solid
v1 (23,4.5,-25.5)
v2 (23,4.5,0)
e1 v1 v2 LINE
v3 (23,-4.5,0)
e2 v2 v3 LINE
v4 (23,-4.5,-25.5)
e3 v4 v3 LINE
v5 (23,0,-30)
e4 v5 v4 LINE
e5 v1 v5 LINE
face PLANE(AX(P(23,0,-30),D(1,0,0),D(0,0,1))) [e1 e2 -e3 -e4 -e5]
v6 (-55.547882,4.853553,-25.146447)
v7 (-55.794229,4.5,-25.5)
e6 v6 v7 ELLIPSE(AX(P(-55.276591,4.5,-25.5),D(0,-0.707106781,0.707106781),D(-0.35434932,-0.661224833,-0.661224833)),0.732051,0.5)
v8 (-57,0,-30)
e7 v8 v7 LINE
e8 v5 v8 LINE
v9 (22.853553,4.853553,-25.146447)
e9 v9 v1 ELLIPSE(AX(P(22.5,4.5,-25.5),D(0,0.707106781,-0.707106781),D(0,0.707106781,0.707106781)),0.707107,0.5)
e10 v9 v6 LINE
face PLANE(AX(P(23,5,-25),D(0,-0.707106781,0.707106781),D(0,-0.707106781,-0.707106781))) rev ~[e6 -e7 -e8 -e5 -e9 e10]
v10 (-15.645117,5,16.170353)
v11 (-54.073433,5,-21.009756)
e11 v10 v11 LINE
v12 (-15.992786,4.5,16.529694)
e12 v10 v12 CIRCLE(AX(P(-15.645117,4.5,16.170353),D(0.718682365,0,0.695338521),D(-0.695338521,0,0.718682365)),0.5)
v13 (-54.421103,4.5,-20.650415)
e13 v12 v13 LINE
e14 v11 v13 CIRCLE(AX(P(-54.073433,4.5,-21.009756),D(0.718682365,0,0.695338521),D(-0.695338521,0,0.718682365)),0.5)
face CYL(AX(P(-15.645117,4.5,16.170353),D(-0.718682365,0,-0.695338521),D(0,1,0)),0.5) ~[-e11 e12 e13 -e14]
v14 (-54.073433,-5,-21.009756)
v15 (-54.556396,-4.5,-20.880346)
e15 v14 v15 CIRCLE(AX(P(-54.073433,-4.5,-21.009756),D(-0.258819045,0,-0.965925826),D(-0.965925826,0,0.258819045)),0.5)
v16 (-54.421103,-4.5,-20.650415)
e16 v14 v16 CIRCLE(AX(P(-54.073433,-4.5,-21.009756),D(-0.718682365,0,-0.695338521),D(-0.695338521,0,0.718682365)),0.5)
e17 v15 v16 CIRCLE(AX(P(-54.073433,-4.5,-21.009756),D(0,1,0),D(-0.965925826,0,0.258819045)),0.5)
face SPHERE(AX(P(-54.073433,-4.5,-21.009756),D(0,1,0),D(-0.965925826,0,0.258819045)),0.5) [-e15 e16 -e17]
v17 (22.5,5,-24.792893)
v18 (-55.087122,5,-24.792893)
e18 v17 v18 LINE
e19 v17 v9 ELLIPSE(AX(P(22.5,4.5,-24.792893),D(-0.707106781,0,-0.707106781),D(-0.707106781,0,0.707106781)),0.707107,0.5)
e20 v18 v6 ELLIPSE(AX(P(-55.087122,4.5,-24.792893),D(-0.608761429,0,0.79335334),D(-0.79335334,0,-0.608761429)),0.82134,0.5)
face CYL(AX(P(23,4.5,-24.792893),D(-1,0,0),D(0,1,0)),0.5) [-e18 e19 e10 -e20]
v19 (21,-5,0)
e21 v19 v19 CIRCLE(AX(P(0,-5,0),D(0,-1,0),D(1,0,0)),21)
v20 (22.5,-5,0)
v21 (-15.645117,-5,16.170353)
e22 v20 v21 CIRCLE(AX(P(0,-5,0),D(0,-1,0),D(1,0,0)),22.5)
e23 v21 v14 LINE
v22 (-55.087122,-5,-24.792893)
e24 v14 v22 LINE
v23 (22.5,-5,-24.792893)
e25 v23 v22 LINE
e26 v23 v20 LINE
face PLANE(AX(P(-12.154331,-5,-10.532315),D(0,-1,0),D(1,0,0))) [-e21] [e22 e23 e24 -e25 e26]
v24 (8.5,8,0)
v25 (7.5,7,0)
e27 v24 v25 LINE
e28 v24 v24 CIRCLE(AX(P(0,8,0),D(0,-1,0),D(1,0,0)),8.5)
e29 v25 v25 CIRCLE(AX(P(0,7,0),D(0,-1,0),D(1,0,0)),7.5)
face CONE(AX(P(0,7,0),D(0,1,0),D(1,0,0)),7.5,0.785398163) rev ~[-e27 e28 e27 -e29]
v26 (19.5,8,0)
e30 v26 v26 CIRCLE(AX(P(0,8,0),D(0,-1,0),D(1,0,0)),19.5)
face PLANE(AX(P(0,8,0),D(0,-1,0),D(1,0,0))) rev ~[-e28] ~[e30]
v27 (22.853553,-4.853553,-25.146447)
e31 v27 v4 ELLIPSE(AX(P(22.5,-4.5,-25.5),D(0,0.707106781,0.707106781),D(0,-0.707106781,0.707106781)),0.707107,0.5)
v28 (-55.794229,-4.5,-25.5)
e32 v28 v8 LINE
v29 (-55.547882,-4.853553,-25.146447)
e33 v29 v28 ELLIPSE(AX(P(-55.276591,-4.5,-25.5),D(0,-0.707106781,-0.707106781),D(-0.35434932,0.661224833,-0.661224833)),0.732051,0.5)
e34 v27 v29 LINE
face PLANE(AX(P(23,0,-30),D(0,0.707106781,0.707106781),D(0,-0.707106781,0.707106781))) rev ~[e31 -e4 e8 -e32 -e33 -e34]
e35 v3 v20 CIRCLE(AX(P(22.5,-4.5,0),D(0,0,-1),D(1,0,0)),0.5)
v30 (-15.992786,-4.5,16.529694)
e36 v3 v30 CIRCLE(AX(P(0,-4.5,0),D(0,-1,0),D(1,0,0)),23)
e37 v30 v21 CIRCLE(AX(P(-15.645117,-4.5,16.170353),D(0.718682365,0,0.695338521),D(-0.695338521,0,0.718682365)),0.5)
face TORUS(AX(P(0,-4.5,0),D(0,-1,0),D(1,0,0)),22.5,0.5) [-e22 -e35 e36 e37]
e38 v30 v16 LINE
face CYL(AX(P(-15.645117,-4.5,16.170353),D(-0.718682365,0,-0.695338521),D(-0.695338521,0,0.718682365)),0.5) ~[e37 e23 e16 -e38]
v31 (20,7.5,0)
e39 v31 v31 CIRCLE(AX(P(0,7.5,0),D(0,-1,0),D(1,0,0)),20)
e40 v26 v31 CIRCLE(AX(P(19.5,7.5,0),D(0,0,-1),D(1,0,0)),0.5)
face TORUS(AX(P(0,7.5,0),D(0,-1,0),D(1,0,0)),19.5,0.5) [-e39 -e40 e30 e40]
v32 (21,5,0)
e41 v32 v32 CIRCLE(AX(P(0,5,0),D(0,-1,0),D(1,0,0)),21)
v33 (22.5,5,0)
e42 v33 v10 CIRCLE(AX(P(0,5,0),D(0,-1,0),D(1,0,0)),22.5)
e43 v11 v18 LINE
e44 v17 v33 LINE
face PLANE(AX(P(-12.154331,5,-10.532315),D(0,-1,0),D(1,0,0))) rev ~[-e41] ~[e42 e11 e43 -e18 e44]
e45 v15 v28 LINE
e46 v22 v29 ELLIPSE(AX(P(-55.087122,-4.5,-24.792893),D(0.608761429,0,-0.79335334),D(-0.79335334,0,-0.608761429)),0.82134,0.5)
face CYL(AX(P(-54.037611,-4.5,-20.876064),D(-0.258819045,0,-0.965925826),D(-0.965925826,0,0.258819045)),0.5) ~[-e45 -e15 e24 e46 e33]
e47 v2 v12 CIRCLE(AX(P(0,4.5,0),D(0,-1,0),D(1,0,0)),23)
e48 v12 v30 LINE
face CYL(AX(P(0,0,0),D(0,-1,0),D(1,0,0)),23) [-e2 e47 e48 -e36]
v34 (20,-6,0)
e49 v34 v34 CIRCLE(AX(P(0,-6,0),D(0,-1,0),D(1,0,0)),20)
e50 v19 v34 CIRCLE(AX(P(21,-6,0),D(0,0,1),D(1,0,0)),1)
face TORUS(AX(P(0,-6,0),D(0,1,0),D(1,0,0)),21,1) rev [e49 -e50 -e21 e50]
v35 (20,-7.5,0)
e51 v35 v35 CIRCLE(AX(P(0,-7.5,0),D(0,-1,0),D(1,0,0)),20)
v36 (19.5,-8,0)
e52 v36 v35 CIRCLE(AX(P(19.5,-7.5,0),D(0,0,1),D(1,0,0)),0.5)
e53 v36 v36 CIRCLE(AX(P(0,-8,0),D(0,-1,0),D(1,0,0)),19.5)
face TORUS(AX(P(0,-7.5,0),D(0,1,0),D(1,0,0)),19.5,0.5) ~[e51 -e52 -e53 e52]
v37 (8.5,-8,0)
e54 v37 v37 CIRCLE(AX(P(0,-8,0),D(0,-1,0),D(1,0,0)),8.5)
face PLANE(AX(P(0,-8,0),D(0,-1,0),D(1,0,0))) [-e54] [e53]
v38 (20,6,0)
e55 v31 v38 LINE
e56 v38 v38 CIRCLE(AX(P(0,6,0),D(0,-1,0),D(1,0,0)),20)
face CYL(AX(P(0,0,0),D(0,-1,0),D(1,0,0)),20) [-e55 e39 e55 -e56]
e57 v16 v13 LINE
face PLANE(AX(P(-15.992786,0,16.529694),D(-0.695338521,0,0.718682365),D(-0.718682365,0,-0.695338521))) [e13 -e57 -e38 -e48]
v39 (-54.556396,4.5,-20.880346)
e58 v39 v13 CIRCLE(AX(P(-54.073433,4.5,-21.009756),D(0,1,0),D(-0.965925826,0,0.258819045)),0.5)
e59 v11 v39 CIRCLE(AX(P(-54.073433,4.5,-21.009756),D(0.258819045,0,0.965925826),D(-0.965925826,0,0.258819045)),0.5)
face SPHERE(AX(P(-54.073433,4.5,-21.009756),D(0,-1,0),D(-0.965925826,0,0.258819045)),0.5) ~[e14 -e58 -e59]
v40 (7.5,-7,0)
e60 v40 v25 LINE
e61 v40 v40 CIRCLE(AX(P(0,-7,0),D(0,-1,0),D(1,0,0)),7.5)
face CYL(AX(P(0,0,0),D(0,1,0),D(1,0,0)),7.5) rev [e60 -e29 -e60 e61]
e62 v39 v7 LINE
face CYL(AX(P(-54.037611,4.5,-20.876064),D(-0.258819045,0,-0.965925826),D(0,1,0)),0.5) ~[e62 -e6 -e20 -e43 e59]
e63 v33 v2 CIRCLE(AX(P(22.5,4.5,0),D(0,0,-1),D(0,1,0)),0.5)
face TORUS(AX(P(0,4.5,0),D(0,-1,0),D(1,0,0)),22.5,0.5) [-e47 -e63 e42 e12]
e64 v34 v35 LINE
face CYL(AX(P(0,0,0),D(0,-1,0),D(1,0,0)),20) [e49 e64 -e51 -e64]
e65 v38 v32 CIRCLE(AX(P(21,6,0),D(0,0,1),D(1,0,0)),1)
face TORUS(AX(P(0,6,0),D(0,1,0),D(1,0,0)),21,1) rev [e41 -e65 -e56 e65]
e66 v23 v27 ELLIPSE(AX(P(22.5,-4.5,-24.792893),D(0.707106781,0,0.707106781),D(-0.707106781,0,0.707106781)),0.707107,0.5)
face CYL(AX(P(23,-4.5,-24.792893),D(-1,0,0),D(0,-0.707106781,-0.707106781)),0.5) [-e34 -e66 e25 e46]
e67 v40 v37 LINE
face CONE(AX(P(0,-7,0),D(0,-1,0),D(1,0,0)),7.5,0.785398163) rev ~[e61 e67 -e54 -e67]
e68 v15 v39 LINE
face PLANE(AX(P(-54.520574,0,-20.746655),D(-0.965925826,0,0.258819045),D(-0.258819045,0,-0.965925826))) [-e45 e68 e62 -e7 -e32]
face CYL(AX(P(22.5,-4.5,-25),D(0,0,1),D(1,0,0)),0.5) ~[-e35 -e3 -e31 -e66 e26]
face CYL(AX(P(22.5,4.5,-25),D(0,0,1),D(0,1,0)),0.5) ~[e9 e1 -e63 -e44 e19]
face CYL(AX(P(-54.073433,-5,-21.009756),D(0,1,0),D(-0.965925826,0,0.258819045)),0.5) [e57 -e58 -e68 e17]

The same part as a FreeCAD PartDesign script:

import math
import FreeCAD as App
import Part
import Sketcher

V = App.Vector
Q = App.Units.Quantity


def edges_at(feature, points):
    """Names of the edges that pass closest to the given points."""
    edges = feature.Shape.Edges
    near = lambda p: min(range(len(edges)), key=lambda i: edges[i].distToShape(Part.Vertex(*p))[0])
    return sorted({f"Edge{near(p) + 1}" for p in points})


def add_polygon(sketch, points):
    """Adds a closed chain of lines whose ends are joined by coincident constraints."""
    first, n = sketch.GeometryCount, len(points)
    for a, b in zip(points, points[1:] + points[:1]):
        sketch.addGeometry(Part.LineSegment(App.Vector(*a, 0), App.Vector(*b, 0)), False)
    for i in range(n):
        sketch.addConstraint(Sketcher.Constraint("Coincident", first + i, 2, first + (i + 1) % n, 1))

doc = App.newDocument("Part")
params = doc.addObject("Spreadsheet::Sheet", "Params")
for row, (alias, value) in enumerate([
    ("sketch1_diameter", "40 mm"),
    ("sketch1_radius", "23 mm"),
    ("sketch1_width", "80 mm"),
    ("sketch1_height", "30 mm"),
    ("pad1_length", "10 mm"),
    ("sketch2_diameter", "40 mm"),
    ("sketch2_diameter2", "15 mm"),
    ("pad2_length", "16 mm"),
    ("fillet_radius", "1 mm"),
    ("chamfer_size", "1 mm"),
    ("fillet2_radius", "0.5 mm"),
], start=1):
    params.set(f"A{row}", alias)
    params.set(f"B{row}", "=" + value)
    params.setAlias(f"B{row}", alias)

body = doc.addObject("PartDesign::Body", "Body")

# Sketch on XZ plane
sketch1 = body.newObject("Sketcher::SketchObject", "Sketch")
sketch1.AttachmentSupport = (doc.getObject("XZ_Plane"), [""])
sketch1.MapMode = "FlatFace"
sketch1.addGeometry(Part.LineSegment(V(23, -30, 0), V(23, 0, 0)), False)
sketch1.addGeometry(Part.ArcOfCircle(Part.Circle(V(0, 0, 0), V(0, 0, 1), 23), math.radians(0), math.radians(134.054199)), False)
sketch1.addGeometry(Part.LineSegment(V(-15.992786, 16.529694, 0), V(-54.520574, -20.746655, 0)), False)
sketch1.addGeometry(Part.LineSegment(V(-54.520574, -20.746655, 0), V(-57, -30, 0)), False)
sketch1.addGeometry(Part.LineSegment(V(-57, -30, 0), V(23, -30, 0)), False)
sketch1.addGeometry(Part.Circle(V(0, 0, 0), V(0, 0, 1), 20), False)
sketch1.addConstraint(Sketcher.Constraint("Tangent", 0, 2, 1, 1))
sketch1.addConstraint(Sketcher.Constraint("Tangent", 1, 2, 2, 1))
sketch1.addConstraint(Sketcher.Constraint("Coincident", 2, 2, 3, 1))
sketch1.addConstraint(Sketcher.Constraint("Coincident", 3, 2, 4, 1))
sketch1.addConstraint(Sketcher.Constraint("Coincident", 4, 2, 0, 1))
sketch1.addConstraint(Sketcher.Constraint("Vertical", 0))
sketch1.addConstraint(Sketcher.Constraint("Horizontal", 4))
sketch1.addConstraint(Sketcher.Constraint("Coincident", 1, 3, -1, 1))
sketch1.addConstraint(Sketcher.Constraint("Coincident", 5, 3, -1, 1))
sketch1.addConstraint(Sketcher.Constraint("Diameter", 5, Q("40 mm")))
sketch1.addConstraint(Sketcher.Constraint("Radius", 1, Q("23 mm")))
sketch1.addConstraint(Sketcher.Constraint("DistanceX", 4, 1, 4, 2, Q("80 mm")))
sketch1.addConstraint(Sketcher.Constraint("DistanceY", 0, 1, 0, 2, Q("30 mm")))
sketch1.addConstraint(Sketcher.Constraint("Angle", 3, Q("-105 deg")))
sketch1.addConstraint(Sketcher.Constraint("DistanceY", 2, 2, 1, 2, Q("37.276349 mm")))
sketch1.setExpression("Constraints[9]", "Params.sketch1_diameter")
sketch1.setExpression("Constraints[10]", "Params.sketch1_radius")
sketch1.setExpression("Constraints[11]", "Params.sketch1_width")
sketch1.setExpression("Constraints[12]", "Params.sketch1_height")
pad1 = body.newObject("PartDesign::Pad", "Pad")
pad1.Profile = sketch1
pad1.setExpression("Length", "Params.pad1_length")
pad1.Midplane = True

# Sketch on XZ plane
sketch2 = body.newObject("Sketcher::SketchObject", "Sketch001")
sketch2.AttachmentSupport = (doc.getObject("XZ_Plane"), [""])
sketch2.MapMode = "FlatFace"
sketch2.addGeometry(Part.Circle(V(0, 0, 0), V(0, 0, 1), 20), False)
sketch2.addGeometry(Part.Circle(V(0, 0, 0), V(0, 0, 1), 7.5), False)
sketch2.addConstraint(Sketcher.Constraint("Coincident", 0, 3, -1, 1))
sketch2.addConstraint(Sketcher.Constraint("Coincident", 1, 3, -1, 1))
sketch2.addConstraint(Sketcher.Constraint("Diameter", 0, Q("40 mm")))
sketch2.addConstraint(Sketcher.Constraint("Diameter", 1, Q("15 mm")))
sketch2.setExpression("Constraints[2]", "Params.sketch2_diameter")
sketch2.setExpression("Constraints[3]", "Params.sketch2_diameter2")
pad2 = body.newObject("PartDesign::Pad", "Pad001")
pad2.Profile = sketch2
pad2.setExpression("Length", "Params.pad2_length")
pad2.Midplane = True
doc.recompute()

fillet = body.newObject("PartDesign::Fillet", "Fillet")
fillet.Base = (pad2, edges_at(pad2, [(-20, -5, 0), (-20, 5, 0)]))
fillet.setExpression("Radius", "Params.fillet_radius")
doc.recompute()

chamfer = body.newObject("PartDesign::Chamfer", "Chamfer")
chamfer.Base = (fillet, edges_at(fillet, [(-7.5, -8, 0), (7.5, 0, 0), (-7.5, 8, 0)]))
chamfer.setExpression("Size", "Params.chamfer_size")

# Sketch on YZ plane
sketch3 = body.newObject("Sketcher::SketchObject", "Sketch002")
sketch3.AttachmentSupport = (doc.getObject("YZ_Plane"), [""])
sketch3.MapMode = "FlatFace"
sketch3.AttachmentOffset = App.Placement(V(0, 0, 23), App.Rotation())
add_polygon(sketch3, [(5, -25), (0, -30), (-5, -25), (-8.404663, -25), (-8.404663, -34.272656), (8.404663, -34.272656), (8.404663, -25)])  # lines 0-6
sketch3.addConstraint(Sketcher.Constraint("Horizontal", 2))
sketch3.addConstraint(Sketcher.Constraint("Vertical", 3))
sketch3.addConstraint(Sketcher.Constraint("Horizontal", 4))
sketch3.addConstraint(Sketcher.Constraint("Vertical", 5))
sketch3.addConstraint(Sketcher.Constraint("Horizontal", 6))
sketch3.addConstraint(Sketcher.Constraint("Symmetric", 2, 2, 5, 2, -2))
sketch3.addConstraint(Sketcher.Constraint("PointOnObject", 0, 2, -2))
sketch3.addConstraint(Sketcher.Constraint("Perpendicular", 0, 1))
sketch3.addConstraint(Sketcher.Constraint("Equal", 2, 6))
sketch3.addConstraint(Sketcher.Constraint("DistanceY", 0, 2, -1, 1, Q("30 mm")))
sketch3.addConstraint(Sketcher.Constraint("DistanceX", 1, 2, -1, 1, Q("5 mm")))
sketch3.addConstraint(Sketcher.Constraint("DistanceX", 2, 2, 2, 1, Q("3.404663 mm")))
sketch3.addConstraint(Sketcher.Constraint("DistanceY", 3, 2, 3, 1, Q("9.272656 mm")))
pocket1 = body.newObject("PartDesign::Pocket", "Pocket")
pocket1.Profile = sketch3
pocket1.Type = "ThroughAll"
doc.recompute()

fillet2 = body.newObject("PartDesign::Fillet", "Fillet001")
fillet2.Base = (pocket1, edges_at(pocket1, [
    (-20, -8, 0),
    (-20, 8, 0),
    (-16.33, 5, -25),
    (-55.09, 5, -22.873),
    (-35.257, 5, -2.108),
    (-16.33, -5, -25),
    (-55.09, -5, -22.873),
    (23, -5, -12.5),
    (-54.521, 0, -20.747),
]))
fillet2.setExpression("Radius", "Params.fillet2_radius")

doc.recompute()
